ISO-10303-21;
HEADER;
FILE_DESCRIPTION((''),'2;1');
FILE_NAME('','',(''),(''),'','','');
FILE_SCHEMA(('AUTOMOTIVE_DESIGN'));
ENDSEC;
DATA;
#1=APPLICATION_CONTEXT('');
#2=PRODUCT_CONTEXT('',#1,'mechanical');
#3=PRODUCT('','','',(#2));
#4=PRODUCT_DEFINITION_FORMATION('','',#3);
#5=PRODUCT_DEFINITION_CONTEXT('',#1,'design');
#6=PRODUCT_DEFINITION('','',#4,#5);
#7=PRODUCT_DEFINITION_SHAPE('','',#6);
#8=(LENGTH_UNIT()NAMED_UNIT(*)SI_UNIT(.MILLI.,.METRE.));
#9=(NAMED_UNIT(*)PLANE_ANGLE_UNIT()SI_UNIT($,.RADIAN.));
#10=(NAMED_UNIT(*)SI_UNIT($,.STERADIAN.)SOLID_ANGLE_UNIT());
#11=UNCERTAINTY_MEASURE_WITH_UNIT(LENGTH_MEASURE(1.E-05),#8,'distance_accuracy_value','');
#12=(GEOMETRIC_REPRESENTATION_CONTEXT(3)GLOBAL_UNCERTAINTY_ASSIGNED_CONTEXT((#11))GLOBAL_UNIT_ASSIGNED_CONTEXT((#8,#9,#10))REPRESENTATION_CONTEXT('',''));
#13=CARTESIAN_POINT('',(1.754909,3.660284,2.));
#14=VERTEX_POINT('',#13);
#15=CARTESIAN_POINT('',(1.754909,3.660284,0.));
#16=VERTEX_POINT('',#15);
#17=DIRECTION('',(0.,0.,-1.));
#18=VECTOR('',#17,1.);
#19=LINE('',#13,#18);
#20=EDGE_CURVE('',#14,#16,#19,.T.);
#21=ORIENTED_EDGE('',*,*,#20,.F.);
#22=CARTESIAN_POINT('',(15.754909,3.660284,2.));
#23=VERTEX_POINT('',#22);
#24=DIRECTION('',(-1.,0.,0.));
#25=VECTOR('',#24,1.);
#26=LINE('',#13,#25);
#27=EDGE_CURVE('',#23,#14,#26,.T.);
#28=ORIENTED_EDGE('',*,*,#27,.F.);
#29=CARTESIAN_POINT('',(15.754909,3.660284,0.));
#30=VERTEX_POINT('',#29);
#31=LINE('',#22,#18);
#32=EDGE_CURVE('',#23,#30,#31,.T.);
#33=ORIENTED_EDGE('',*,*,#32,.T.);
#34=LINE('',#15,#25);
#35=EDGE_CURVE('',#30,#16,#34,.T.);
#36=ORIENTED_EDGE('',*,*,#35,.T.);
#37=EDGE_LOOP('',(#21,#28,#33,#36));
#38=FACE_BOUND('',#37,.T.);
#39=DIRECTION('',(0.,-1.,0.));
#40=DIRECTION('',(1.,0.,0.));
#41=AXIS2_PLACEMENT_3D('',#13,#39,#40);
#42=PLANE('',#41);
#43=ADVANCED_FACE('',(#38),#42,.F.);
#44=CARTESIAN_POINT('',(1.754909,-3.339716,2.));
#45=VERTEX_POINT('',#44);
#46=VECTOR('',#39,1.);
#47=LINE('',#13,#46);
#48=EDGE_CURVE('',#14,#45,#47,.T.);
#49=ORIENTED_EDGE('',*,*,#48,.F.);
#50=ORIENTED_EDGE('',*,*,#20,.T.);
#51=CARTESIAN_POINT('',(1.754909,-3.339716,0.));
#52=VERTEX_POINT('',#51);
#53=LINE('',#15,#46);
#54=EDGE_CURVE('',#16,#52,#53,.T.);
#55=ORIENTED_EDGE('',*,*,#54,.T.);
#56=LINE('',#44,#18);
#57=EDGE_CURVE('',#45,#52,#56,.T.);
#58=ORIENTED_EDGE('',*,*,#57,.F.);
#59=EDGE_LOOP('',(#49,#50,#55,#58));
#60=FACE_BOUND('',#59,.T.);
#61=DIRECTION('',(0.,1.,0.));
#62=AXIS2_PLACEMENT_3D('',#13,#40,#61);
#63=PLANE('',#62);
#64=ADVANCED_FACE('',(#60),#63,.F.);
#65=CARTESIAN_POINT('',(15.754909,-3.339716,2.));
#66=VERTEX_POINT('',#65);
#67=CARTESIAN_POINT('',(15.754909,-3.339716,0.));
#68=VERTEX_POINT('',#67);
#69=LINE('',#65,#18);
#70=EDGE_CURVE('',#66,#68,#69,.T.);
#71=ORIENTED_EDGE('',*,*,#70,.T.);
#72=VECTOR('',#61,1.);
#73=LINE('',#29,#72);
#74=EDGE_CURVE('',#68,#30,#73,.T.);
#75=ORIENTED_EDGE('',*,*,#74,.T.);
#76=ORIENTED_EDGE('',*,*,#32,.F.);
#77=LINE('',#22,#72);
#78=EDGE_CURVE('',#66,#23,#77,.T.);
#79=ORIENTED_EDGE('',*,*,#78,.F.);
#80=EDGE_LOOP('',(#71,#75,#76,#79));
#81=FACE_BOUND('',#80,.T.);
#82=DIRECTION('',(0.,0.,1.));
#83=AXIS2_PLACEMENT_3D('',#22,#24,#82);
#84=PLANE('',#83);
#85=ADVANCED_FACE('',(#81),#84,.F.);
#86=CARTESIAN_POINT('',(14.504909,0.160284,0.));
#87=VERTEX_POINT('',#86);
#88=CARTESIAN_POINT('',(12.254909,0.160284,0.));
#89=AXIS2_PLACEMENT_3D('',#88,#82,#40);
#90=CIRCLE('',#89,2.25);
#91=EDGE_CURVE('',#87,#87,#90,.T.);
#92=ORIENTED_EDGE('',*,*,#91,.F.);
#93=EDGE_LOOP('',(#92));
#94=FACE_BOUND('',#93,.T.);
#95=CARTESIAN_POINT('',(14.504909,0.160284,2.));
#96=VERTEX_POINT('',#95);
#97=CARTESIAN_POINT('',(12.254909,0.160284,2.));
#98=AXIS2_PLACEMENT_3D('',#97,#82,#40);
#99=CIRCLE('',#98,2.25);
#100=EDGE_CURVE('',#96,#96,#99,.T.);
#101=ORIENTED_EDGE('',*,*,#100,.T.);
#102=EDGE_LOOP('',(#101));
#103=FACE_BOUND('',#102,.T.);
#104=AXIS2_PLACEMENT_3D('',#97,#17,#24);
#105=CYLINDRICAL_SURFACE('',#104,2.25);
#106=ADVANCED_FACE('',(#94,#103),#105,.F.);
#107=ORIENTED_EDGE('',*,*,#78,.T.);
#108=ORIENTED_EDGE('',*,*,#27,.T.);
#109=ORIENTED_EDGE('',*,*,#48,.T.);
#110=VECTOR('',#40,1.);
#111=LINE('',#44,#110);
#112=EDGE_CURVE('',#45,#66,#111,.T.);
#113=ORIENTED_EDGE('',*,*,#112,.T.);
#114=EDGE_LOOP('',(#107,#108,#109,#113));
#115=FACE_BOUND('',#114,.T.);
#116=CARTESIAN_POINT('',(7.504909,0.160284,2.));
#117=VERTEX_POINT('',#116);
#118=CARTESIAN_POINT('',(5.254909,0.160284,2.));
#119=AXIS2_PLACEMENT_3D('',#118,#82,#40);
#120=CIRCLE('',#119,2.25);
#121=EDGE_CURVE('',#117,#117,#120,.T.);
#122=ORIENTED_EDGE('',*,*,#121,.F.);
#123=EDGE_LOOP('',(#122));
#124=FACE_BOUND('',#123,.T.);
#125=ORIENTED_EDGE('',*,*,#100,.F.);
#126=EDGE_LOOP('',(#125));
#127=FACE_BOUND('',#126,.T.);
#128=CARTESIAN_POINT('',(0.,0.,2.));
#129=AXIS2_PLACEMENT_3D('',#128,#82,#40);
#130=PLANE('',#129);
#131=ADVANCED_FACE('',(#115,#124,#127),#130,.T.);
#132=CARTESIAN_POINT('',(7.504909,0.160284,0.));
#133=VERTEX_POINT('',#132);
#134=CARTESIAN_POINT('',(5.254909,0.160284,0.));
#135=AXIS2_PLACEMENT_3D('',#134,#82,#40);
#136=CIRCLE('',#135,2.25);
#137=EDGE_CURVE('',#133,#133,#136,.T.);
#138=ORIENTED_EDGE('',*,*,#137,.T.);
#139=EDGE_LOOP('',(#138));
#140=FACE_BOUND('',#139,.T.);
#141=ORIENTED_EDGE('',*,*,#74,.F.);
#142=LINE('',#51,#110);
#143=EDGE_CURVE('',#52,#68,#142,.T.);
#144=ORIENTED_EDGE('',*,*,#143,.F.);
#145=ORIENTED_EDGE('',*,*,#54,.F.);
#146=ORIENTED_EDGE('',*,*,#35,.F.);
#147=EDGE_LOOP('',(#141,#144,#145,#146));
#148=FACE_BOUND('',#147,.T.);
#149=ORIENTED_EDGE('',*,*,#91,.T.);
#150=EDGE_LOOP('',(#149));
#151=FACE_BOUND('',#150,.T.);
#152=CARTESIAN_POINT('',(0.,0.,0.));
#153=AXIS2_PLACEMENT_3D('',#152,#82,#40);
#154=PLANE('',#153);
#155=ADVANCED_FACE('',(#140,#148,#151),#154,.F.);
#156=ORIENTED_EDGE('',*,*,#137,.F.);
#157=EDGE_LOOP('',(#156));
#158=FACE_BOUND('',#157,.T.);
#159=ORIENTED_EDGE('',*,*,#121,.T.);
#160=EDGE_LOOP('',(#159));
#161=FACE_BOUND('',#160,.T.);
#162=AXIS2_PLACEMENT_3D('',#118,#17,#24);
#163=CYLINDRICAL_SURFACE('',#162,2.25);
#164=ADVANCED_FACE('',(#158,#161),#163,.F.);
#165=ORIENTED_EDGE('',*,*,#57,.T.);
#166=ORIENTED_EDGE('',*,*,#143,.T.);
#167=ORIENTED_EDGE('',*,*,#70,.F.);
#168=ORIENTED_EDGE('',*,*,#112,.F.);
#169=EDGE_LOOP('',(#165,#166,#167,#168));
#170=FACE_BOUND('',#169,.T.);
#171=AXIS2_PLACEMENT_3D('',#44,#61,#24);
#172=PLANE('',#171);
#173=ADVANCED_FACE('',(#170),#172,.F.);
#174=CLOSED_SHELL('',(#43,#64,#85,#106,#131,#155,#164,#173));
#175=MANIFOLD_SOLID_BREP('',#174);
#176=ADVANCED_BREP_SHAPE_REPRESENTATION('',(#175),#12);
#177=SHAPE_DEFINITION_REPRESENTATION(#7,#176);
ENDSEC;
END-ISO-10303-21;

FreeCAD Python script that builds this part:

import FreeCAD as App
import Part
import Sketcher

V = App.Vector
Q = App.Units.Quantity

doc = App.newDocument("Part")
body = doc.addObject("PartDesign::Body", "Body")

# Sketch on XY plane
sketch1 = body.newObject("Sketcher::SketchObject", "Sketch")
sketch1.AttachmentSupport = (doc.getObject("XY_Plane"), [""])
sketch1.MapMode = "FlatFace"
sketch1.addGeometry([
    Part.LineSegment(V(1.8, 3.7, 0), V(1.8, -3.3, 0)),  # 0
    Part.LineSegment(V(1.8, -3.3, 0), V(15.8, -3.3, 0)),  # 1
    Part.LineSegment(V(15.8, -3.3, 0), V(15.8, 3.7, 0)),  # 2
    Part.LineSegment(V(15.8, 3.7, 0), V(1.8, 3.7, 0)),  # 3
    Part.Circle(V(5.3, 0.2, 0), V(0, 0, 1), 2.2),  # 4
    Part.Circle(V(12.3, 0.2, 0), V(0, 0, 1), 2.2),  # 5
], False)
sketch1.addConstraint([
    Sketcher.Constraint("Coincident", 0, 2, 1, 1),
    Sketcher.Constraint("Coincident", 1, 2, 2, 1),
    Sketcher.Constraint("Coincident", 2, 2, 3, 1),
    Sketcher.Constraint("Coincident", 3, 2, 0, 1),
    Sketcher.Constraint("Vertical", 0),
    Sketcher.Constraint("Horizontal", 1),
    Sketcher.Constraint("Vertical", 2),
    Sketcher.Constraint("Horizontal", 3),
    Sketcher.Constraint("Equal", 4, 5),
    Sketcher.Constraint("Horizontal", 4, 3, 5, 3),
    Sketcher.Constraint("Diameter", 4, Q("4.5 mm")),
    Sketcher.Constraint("DistanceX", 1, 1, 1, 2, Q("14 mm")),
    Sketcher.Constraint("DistanceY", 0, 2, 0, 1, Q("7 mm")),
    Sketcher.Constraint("DistanceX", 4, 3, 5, 3, Q("7 mm")),
    Sketcher.Constraint("DistanceX", 0, 2, 4, 3, Q("3.5 mm")),
    Sketcher.Constraint("DistanceY", 0, 2, 4, 3, Q("3.5 mm")),
    Sketcher.Constraint("DistanceX", -1, 1, 4, 3, Q("5.254909 mm")),
    Sketcher.Constraint("DistanceY", -1, 1, 4, 3, Q("0.160284 mm")),
])
pad1 = body.newObject("PartDesign::Pad", "Pad")
pad1.Profile = sketch1
pad1.Length = 2

doc.recompute()
